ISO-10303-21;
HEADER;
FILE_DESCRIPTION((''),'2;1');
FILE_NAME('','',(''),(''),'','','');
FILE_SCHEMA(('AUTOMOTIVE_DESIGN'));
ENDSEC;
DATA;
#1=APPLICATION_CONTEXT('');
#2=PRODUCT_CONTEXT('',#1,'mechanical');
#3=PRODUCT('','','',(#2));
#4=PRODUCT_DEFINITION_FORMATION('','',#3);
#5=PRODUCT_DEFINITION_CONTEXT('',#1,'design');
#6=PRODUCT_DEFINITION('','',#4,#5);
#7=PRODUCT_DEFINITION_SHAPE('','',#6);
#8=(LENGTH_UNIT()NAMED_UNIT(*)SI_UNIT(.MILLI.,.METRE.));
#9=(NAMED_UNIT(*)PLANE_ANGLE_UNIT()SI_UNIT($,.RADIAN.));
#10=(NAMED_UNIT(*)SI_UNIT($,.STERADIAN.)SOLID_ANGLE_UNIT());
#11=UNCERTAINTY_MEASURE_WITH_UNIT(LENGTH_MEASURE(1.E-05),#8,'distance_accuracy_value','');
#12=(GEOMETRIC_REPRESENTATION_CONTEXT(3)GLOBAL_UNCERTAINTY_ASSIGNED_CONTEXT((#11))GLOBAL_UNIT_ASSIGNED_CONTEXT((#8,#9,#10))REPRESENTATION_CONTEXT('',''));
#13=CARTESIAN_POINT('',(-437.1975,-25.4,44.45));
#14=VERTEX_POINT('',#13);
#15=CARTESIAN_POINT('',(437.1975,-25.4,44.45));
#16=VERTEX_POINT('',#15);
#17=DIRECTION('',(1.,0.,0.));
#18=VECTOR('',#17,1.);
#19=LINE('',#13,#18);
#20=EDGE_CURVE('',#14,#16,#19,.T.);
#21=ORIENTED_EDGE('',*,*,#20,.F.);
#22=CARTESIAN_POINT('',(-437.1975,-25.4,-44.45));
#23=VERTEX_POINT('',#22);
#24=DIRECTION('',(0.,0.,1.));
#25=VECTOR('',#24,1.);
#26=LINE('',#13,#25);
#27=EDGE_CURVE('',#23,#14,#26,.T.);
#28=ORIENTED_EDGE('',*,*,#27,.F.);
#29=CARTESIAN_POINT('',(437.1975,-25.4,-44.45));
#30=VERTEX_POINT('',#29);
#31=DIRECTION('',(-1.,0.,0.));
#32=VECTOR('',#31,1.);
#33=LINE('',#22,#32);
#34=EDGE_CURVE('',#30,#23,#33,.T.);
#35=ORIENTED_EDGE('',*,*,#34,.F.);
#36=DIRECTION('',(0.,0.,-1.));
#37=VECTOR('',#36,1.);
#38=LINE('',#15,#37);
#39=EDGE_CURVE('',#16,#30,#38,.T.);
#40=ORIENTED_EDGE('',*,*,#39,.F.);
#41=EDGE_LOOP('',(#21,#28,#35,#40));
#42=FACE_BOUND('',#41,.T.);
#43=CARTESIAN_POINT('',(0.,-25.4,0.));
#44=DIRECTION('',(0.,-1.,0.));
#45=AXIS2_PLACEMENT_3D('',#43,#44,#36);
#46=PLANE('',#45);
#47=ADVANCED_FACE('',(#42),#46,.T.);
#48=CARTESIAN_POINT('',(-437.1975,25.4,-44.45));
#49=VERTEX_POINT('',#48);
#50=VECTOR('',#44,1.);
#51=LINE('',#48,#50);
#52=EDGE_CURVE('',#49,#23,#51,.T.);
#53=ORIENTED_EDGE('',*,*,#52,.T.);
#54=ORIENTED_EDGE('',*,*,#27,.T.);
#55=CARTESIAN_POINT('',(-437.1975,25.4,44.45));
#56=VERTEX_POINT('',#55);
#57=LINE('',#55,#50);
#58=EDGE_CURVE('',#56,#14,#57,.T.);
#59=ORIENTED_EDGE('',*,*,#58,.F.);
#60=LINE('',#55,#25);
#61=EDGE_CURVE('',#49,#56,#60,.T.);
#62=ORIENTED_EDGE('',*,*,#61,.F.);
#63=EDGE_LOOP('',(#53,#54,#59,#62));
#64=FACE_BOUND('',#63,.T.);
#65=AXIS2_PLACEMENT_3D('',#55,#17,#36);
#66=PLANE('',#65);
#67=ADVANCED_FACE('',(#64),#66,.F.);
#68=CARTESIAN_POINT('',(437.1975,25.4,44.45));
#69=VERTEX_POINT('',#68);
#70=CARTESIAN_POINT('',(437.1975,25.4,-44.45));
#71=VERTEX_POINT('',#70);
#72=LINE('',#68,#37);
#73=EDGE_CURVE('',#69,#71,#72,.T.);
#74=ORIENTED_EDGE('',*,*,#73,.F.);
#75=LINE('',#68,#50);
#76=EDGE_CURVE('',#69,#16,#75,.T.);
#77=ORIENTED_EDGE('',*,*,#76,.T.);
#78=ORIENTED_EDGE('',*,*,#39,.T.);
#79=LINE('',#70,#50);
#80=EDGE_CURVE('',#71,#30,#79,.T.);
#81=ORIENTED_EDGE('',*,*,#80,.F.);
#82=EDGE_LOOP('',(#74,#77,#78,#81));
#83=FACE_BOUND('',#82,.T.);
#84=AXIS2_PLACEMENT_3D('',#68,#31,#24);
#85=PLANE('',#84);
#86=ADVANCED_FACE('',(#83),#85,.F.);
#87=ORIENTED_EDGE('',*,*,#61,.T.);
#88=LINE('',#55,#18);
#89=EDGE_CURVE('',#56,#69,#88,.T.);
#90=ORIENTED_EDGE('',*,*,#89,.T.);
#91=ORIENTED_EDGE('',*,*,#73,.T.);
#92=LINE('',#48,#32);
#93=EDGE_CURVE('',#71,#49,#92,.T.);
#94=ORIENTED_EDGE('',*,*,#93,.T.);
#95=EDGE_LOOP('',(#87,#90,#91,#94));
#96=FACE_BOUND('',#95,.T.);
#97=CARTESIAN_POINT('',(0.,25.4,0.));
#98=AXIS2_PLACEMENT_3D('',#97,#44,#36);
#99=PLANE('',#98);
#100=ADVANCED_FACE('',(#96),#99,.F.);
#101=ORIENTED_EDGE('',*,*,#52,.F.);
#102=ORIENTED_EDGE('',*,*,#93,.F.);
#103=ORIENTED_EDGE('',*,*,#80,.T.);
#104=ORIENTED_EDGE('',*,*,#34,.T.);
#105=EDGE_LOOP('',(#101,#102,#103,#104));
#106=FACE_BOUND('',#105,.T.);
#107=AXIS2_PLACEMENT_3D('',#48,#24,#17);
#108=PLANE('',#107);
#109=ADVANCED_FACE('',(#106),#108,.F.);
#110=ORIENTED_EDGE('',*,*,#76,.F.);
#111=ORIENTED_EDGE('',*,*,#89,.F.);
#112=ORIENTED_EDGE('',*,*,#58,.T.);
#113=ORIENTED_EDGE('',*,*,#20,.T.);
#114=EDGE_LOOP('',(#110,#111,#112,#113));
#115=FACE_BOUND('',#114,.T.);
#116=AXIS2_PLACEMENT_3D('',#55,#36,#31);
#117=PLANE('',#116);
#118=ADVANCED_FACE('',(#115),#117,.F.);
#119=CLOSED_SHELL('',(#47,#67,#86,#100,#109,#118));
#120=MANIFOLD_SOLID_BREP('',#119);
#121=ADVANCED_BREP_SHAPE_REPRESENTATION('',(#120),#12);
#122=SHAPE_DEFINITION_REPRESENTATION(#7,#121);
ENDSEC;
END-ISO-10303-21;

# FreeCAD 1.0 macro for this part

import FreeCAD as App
import Part
import Sketcher
Q = App.Units.Quantity


def add_polygon(sketch, points):
    """Adds a closed chain of lines whose ends are joined by coincident constraints."""
    first, n = sketch.GeometryCount, len(points)
    for a, b in zip(points, points[1:] + points[:1]):
        sketch.addGeometry(Part.LineSegment(App.Vector(*a, 0), App.Vector(*b, 0)), False)
    for i in range(n):
        sketch.addConstraint(Sketcher.Constraint("Coincident", first + i, 2, first + (i + 1) % n, 1))

doc = App.newDocument("Part")
body = doc.addObject("PartDesign::Body", "Body")

sketch1 = doc.addObject("Sketcher::SketchObject", "Sketch")
body.addObject(sketch1)
sketch1.AttachmentSupport = (doc.XZ_Plane, [""])
sketch1.MapMode = "FlatFace"
add_polygon(sketch1, [(-437, -44), (-437, 44), (437, 44), (437, -44)])
sketch1.addConstraint(Sketcher.Constraint("Vertical", 0))
sketch1.addConstraint(Sketcher.Constraint("Horizontal", 1))
sketch1.addConstraint(Sketcher.Constraint("Vertical", 2))
sketch1.addConstraint(Sketcher.Constraint("Horizontal", 3))
sketch1.addConstraint(Sketcher.Constraint("Symmetric", 0, 2, 2, 2, -1, 1))
sketch1.addConstraint(Sketcher.Constraint("DistanceY", 0, 1, 0, 2, Q("3.5 in")))
sketch1.addConstraint(Sketcher.Constraint("DistanceX", 1, 1, 1, 2, Q("34.425 in")))
pad1 = doc.addObject("PartDesign::Pad", "Pad")
body.addObject(pad1)
pad1.Profile = sketch1
pad1.Length = Q("2 in")
pad1.Midplane = True

doc.recompute()
